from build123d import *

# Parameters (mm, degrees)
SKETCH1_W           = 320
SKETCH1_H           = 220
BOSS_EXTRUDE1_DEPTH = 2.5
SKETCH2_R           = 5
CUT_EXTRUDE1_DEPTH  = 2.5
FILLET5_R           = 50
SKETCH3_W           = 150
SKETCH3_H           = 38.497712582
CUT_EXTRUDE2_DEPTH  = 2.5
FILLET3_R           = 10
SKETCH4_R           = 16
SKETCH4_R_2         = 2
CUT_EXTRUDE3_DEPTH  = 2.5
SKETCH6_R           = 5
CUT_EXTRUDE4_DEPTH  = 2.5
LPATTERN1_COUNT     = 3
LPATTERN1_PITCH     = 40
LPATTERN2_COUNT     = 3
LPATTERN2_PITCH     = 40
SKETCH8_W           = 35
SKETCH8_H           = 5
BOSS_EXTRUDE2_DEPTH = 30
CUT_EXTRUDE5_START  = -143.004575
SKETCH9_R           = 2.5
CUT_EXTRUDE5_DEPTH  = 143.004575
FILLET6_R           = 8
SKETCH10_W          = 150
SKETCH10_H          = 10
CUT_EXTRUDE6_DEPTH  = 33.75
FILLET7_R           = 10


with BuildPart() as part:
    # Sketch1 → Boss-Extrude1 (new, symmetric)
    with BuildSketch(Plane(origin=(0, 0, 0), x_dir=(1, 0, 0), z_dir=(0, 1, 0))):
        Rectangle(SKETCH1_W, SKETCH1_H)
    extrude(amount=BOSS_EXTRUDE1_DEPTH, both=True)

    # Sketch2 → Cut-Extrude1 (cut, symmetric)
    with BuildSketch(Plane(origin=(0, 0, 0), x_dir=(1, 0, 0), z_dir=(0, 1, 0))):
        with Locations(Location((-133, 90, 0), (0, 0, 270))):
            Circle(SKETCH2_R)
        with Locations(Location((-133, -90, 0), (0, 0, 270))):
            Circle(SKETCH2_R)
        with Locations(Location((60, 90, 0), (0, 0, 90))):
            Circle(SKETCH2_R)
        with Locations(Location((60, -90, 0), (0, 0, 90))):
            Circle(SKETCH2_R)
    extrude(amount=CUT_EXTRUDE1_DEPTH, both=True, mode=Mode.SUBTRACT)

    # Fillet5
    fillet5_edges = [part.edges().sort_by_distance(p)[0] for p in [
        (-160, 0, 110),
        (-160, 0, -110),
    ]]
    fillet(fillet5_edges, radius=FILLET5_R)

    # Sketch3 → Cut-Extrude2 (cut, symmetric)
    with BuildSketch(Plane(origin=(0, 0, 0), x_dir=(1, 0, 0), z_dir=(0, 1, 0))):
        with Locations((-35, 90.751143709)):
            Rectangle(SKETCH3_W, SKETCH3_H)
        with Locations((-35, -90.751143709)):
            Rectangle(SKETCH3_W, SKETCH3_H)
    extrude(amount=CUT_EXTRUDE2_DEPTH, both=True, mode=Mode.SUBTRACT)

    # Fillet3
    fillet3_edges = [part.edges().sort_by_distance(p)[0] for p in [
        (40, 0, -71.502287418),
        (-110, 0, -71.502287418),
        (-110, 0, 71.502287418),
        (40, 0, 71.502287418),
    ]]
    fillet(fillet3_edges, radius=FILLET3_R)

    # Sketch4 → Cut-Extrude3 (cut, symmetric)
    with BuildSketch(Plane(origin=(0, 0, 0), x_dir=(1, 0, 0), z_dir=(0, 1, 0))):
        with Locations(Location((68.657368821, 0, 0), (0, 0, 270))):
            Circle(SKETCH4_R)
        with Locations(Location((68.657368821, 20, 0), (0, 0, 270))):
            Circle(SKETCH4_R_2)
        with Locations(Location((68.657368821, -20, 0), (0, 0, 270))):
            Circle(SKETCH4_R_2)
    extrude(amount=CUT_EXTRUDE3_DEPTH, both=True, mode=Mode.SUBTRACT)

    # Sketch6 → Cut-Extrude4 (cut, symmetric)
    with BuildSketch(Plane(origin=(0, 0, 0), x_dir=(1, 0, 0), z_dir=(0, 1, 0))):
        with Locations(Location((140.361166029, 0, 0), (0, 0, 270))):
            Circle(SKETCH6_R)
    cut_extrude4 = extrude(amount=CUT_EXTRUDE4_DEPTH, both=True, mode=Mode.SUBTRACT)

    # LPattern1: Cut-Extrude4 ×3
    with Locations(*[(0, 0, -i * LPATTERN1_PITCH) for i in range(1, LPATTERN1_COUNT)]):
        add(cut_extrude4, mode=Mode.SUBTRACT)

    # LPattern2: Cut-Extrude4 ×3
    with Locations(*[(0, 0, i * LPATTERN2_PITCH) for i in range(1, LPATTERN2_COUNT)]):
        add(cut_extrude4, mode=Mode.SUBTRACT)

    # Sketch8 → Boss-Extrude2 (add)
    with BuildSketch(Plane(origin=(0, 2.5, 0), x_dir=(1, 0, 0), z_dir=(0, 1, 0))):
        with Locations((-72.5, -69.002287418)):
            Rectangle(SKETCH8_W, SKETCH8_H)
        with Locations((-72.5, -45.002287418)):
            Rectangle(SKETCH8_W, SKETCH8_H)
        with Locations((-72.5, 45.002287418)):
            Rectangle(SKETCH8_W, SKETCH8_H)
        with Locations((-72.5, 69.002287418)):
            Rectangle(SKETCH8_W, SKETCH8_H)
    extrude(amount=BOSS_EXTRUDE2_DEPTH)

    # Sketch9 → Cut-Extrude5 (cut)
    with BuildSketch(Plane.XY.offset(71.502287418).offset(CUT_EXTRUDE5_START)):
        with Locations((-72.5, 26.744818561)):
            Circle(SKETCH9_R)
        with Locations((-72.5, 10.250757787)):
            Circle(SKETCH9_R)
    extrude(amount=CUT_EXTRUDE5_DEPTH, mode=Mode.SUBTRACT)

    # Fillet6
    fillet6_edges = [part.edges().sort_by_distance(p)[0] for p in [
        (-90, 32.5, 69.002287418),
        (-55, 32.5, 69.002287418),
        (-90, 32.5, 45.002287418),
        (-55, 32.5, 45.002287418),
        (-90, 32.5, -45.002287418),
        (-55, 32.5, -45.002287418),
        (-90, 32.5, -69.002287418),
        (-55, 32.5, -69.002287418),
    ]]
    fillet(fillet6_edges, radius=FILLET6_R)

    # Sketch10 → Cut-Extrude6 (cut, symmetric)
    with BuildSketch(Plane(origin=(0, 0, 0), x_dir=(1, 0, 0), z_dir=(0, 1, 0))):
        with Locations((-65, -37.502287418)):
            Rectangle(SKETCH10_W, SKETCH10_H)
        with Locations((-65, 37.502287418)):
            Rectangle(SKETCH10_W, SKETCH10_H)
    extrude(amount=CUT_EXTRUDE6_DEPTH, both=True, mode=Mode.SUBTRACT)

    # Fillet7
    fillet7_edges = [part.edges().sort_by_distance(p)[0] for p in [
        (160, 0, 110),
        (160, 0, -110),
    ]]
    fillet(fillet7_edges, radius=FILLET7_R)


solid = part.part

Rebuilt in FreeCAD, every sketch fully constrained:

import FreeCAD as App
import Part
import Sketcher


def edges_at(feature, points):
    """Names of the edges that pass closest to the given points."""
    edges = feature.Shape.Edges
    near = lambda p: min(range(len(edges)), key=lambda i: edges[i].distToShape(Part.Vertex(*p))[0])
    return sorted({f"Edge{near(p) + 1}" for p in points})


def add_polygon(sketch, points):
    """Adds a closed chain of lines whose ends are joined by coincident constraints."""
    first, n = sketch.GeometryCount, len(points)
    for a, b in zip(points, points[1:] + points[:1]):
        sketch.addGeometry(Part.LineSegment(App.Vector(*a, 0), App.Vector(*b, 0)), False)
    for i in range(n):
        sketch.addConstraint(Sketcher.Constraint("Coincident", first + i, 2, first + (i + 1) % n, 1))

doc = App.newDocument("Part")
body = doc.addObject("PartDesign::Body", "Body")

# Sketch on XZ plane
sketch1 = doc.addObject("Sketcher::SketchObject", "Sketch")
body.addObject(sketch1)
sketch1.AttachmentSupport = (doc.XZ_Plane, [""])
sketch1.MapMode = "FlatFace"
add_polygon(sketch1, [(-160, -110), (-160, 110), (160, 110), (160, -110)])  # lines 0-3
sketch1.addConstraint([
    Sketcher.Constraint("Vertical", 0),
    Sketcher.Constraint("Horizontal", 1),
    Sketcher.Constraint("Vertical", 2),
    Sketcher.Constraint("Horizontal", 3),
    Sketcher.Constraint("Symmetric", 0, 2, 2, 2, -1, 1),
    Sketcher.Constraint("DistanceX", 1, 1, 1, 2, 320.0),
    Sketcher.Constraint("DistanceY", 0, 1, 0, 2, 220.0),
])
pad1 = doc.addObject("PartDesign::Pad", "Pad")
body.addObject(pad1)
pad1.Profile = sketch1
pad1.Length = 5
pad1.Midplane = True

# Sketch on XZ plane
sketch2 = doc.addObject("Sketcher::SketchObject", "Sketch001")
body.addObject(sketch2)
sketch2.AttachmentSupport = (doc.XZ_Plane, [""])
sketch2.MapMode = "FlatFace"
sketch2.addGeometry([
    Part.Circle(App.Vector(-133, -90, 0), App.Vector(0, 0, 1), 5),
    Part.Circle(App.Vector(-133, 90, 0), App.Vector(0, 0, 1), 5),
    Part.Circle(App.Vector(60, -90, 0), App.Vector(0, 0, 1), 5),
    Part.Circle(App.Vector(60, 90, 0), App.Vector(0, 0, 1), 5),
], False)
sketch2.addConstraint([
    Sketcher.Constraint("Equal", 0, 1),
    Sketcher.Constraint("Equal", 1, 2),
    Sketcher.Constraint("Equal", 2, 3),
    Sketcher.Constraint("Symmetric", 0, 3, 1, 3, -1),
    Sketcher.Constraint("Symmetric", 2, 3, 3, 3, -1),
    Sketcher.Constraint("Horizontal", 0, 3, 2, 3),
    Sketcher.Constraint("Diameter", 0, 10.0),
    Sketcher.Constraint("DistanceX", 0, 3, -1, 1, 133.0),
    Sketcher.Constraint("DistanceY", 0, 3, -1, 1, 90.0),
    Sketcher.Constraint("DistanceX", -1, 1, 2, 3, 60.0),
])
pocket1 = doc.addObject("PartDesign::Pocket", "Pocket")
body.addObject(pocket1)
pocket1.Profile = sketch2
pocket1.Length = 5
pocket1.Midplane = True
doc.recompute()

fillet = doc.addObject("PartDesign::Fillet", "Fillet")
body.addObject(fillet)
fillet.Base = (pocket1, edges_at(pocket1, [(-160, 0, 110), (-160, 0, -110)]))
fillet.Radius = 50

# Sketch on XZ plane
sketch3 = doc.addObject("Sketcher::SketchObject", "Sketch002")
body.addObject(sketch3)
sketch3.AttachmentSupport = (doc.XZ_Plane, [""])
sketch3.MapMode = "FlatFace"
add_polygon(sketch3, [(-110, -110), (-110, -72), (40, -72), (40, -110)])  # lines 0-3
add_polygon(sketch3, [(-110, 72), (-110, 110), (40, 110), (40, 72)])  # lines 4-7
sketch3.addConstraint([
    Sketcher.Constraint("Vertical", 0),
    Sketcher.Constraint("Horizontal", 1),
    Sketcher.Constraint("Vertical", 2),
    Sketcher.Constraint("Horizontal", 3),
    Sketcher.Constraint("Vertical", 4),
    Sketcher.Constraint("Horizontal", 5),
    Sketcher.Constraint("Vertical", 6),
    Sketcher.Constraint("Horizontal", 7),
    Sketcher.Constraint("Symmetric", 3, 2, 4, 2, -1),
    Sketcher.Constraint("Symmetric", 1, 2, 6, 2, -1),
    Sketcher.Constraint("DistanceX", 1, 1, 1, 2, 150.0),
    Sketcher.Constraint("DistanceX", 0, 2, -1, 1, 110.0),
    Sketcher.Constraint("DistanceY", 2, 2, -1, 1, 110.0),
    Sketcher.Constraint("DistanceY", 0, 1, 0, 2, 38.497713),
])
pocket2 = doc.addObject("PartDesign::Pocket", "Pocket001")
body.addObject(pocket2)
pocket2.Profile = sketch3
pocket2.Length = 5
pocket2.Midplane = True
doc.recompute()

fillet2 = doc.addObject("PartDesign::Fillet", "Fillet001")
body.addObject(fillet2)
fillet2.Base = (pocket2, edges_at(pocket2, [
    (40, 0, -71.502),
    (-110, 0, -71.502),
    (-110, 0, 71.502),
    (40, 0, 71.502),
]))
fillet2.Radius = 10

# Sketch on XZ plane
sketch4 = doc.addObject("Sketcher::SketchObject", "Sketch003")
body.addObject(sketch4)
sketch4.AttachmentSupport = (doc.XZ_Plane, [""])
sketch4.MapMode = "FlatFace"
sketch4.addGeometry([
    Part.Circle(App.Vector(68.7, 0, 0), App.Vector(0, 0, 1), 16),
    Part.Circle(App.Vector(68.7, -20, 0), App.Vector(0, 0, 1), 2),
    Part.Circle(App.Vector(68.7, 20, 0), App.Vector(0, 0, 1), 2),
], False)
sketch4.addConstraint([
    Sketcher.Constraint("Equal", 1, 2),
    Sketcher.Constraint("Symmetric", 1, 3, 2, 3, -1),
    Sketcher.Constraint("PointOnObject", 0, 3, -1),
    Sketcher.Constraint("Vertical", 0, 3, 1, 3),
    Sketcher.Constraint("Diameter", 0, 32.0),
    Sketcher.Constraint("Diameter", 1, 4.0),
    Sketcher.Constraint("DistanceY", 1, 3, -1, 1, 20.0),
    Sketcher.Constraint("DistanceX", -1, 1, 0, 3, 68.657369),
])
pocket3 = doc.addObject("PartDesign::Pocket", "Pocket002")
body.addObject(pocket3)
pocket3.Profile = sketch4
pocket3.Length = 5
pocket3.Midplane = True

# Sketch on XZ plane
sketch5 = doc.addObject("Sketcher::SketchObject", "Sketch004")
body.addObject(sketch5)
sketch5.AttachmentSupport = (doc.XZ_Plane, [""])
sketch5.MapMode = "FlatFace"
sketch5.addGeometry(Part.Circle(App.Vector(140, 0, 0), App.Vector(0, 0, 1), 5), False)
sketch5.addConstraint([
    Sketcher.Constraint("PointOnObject", 0, 3, -1),
    Sketcher.Constraint("Diameter", 0, 10.0),
    Sketcher.Constraint("DistanceX", -1, 1, 0, 3, 140.361166),
])
pocket4 = doc.addObject("PartDesign::Pocket", "Pocket003")
body.addObject(pocket4)
pocket4.Profile = sketch5
pocket4.Length = 5
pocket4.Midplane = True
doc.recompute()

linearpattern = doc.addObject("PartDesign::LinearPattern", "LinearPattern")
body.addObject(linearpattern)
linearpattern.Originals = [pocket4]
linearpattern.Direction = (doc.Z_Axis, [""])
linearpattern.Mode = "offset"
linearpattern.Offset = 40
linearpattern.Occurrences = 3
linearpattern.Reversed = True
body.Tip = linearpattern
doc.recompute()

linearpattern2 = doc.addObject("PartDesign::LinearPattern", "LinearPattern001")
body.addObject(linearpattern2)
linearpattern2.Originals = [pocket4]
linearpattern2.Direction = (doc.Z_Axis, [""])
linearpattern2.Mode = "offset"
linearpattern2.Offset = 40
linearpattern2.Occurrences = 3
body.Tip = linearpattern2

# Sketch on XZ plane
sketch6 = doc.addObject("Sketcher::SketchObject", "Sketch005")
body.addObject(sketch6)
sketch6.AttachmentSupport = (doc.XZ_Plane, [""])
sketch6.MapMode = "FlatFace"
sketch6.AttachmentOffset = App.Placement(App.Vector(0, 0, -2.5), App.Rotation())
add_polygon(sketch6, [(-90, 67), (-90, 72), (-55, 72), (-55, 67)])  # lines 0-3
add_polygon(sketch6, [(-90, 43), (-90, 48), (-55, 48), (-55, 43)])  # lines 4-7
add_polygon(sketch6, [(-90, -48), (-90, -43), (-55, -43), (-55, -48)])  # lines 8-11
add_polygon(sketch6, [(-90, -72), (-90, -67), (-55, -67), (-55, -72)])  # lines 12-15
sketch6.addConstraint([
    Sketcher.Constraint("Vertical", 0),
    Sketcher.Constraint("Horizontal", 1),
    Sketcher.Constraint("Vertical", 2),
    Sketcher.Constraint("Horizontal", 3),
    Sketcher.Constraint("Vertical", 4),
    Sketcher.Constraint("Horizontal", 5),
    Sketcher.Constraint("Vertical", 6),
    Sketcher.Constraint("Horizontal", 7),
    Sketcher.Constraint("Vertical", 8),
    Sketcher.Constraint("Horizontal", 9),
    Sketcher.Constraint("Vertical", 10),
    Sketcher.Constraint("Horizontal", 11),
    Sketcher.Constraint("Vertical", 12),
    Sketcher.Constraint("Horizontal", 13),
    Sketcher.Constraint("Vertical", 14),
    Sketcher.Constraint("Horizontal", 15),
    Sketcher.Constraint("Symmetric", 7, 2, 8, 2, -1),
    Sketcher.Constraint("Symmetric", 5, 2, 10, 2, -1),
    Sketcher.Constraint("Symmetric", 3, 2, 12, 2, -1),
    Sketcher.Constraint("Symmetric", 1, 2, 14, 2, -1),
    Sketcher.Constraint("Vertical", 3, 2, 4, 2),
    Sketcher.Constraint("Vertical", 2, 2, 5, 2),
    Sketcher.Constraint("Equal", 2, 4),
    Sketcher.Constraint("DistanceX", 1, 1, 1, 2, 35.0),
    Sketcher.Constraint("DistanceY", 0, 1, 0, 2, 5.0),
    Sketcher.Constraint("DistanceX", 0, 2, -1, 1, 90.0),
    Sketcher.Constraint("DistanceY", 4, 2, 3, 2, 19.0),
    Sketcher.Constraint("DistanceY", -1, 1, 0, 2, 71.502287),
])
pad2 = doc.addObject("PartDesign::Pad", "Pad001")
body.addObject(pad2)
pad2.Profile = sketch6
pad2.Length = 30
pad2.Reversed = True

# Sketch on XY plane
sketch7 = doc.addObject("Sketcher::SketchObject", "Sketch006")
body.addObject(sketch7)
sketch7.AttachmentSupport = (doc.XY_Plane, [""])
sketch7.MapMode = "FlatFace"
sketch7.AttachmentOffset = App.Placement(App.Vector(0, 0, -71.502288), App.Rotation())
sketch7.addGeometry([
    Part.Circle(App.Vector(-72.5, 26.7, 0), App.Vector(0, 0, 1), 2.5),
    Part.Circle(App.Vector(-72.5, 10.3, 0), App.Vector(0, 0, 1), 2.5),
], False)
sketch7.addConstraint([
    Sketcher.Constraint("Equal", 0, 1),
    Sketcher.Constraint("Vertical", 0, 3, 1, 3),
    Sketcher.Constraint("Diameter", 0, 5.0),
    Sketcher.Constraint("DistanceX", 0, 3, -1, 1, 72.5),
    Sketcher.Constraint("DistanceY", -1, 1, 0, 3, 26.744819),
    Sketcher.Constraint("DistanceY", 1, 3, 0, 3, 16.494061),
])
pocket5 = doc.addObject("PartDesign::Pocket", "Pocket004")
body.addObject(pocket5)
pocket5.Profile = sketch7
pocket5.Length = 143.004575
pocket5.Reversed = True
doc.recompute()

fillet3 = doc.addObject("PartDesign::Fillet", "Fillet002")
body.addObject(fillet3)
fillet3.Base = (pocket5, edges_at(pocket5, [
    (-90, 32.5, 69.002),
    (-55, 32.5, 69.002),
    (-90, 32.5, 45.002),
    (-55, 32.5, 45.002),
    (-90, 32.5, -45.002),
    (-55, 32.5, -45.002),
    (-90, 32.5, -69.002),
    (-55, 32.5, -69.002),
]))
fillet3.Radius = 8

# Sketch on XZ plane
sketch8 = doc.addObject("Sketcher::SketchObject", "Sketch007")
body.addObject(sketch8)
sketch8.AttachmentSupport = (doc.XZ_Plane, [""])
sketch8.MapMode = "FlatFace"
add_polygon(sketch8, [(-140, 33), (-140, 43), (10, 43), (10, 33)])  # lines 0-3
add_polygon(sketch8, [(-140, -43), (-140, -33), (10, -33), (10, -43)])  # lines 4-7
sketch8.addConstraint([
    Sketcher.Constraint("Vertical", 0),
    Sketcher.Constraint("Horizontal", 1),
    Sketcher.Constraint("Vertical", 2),
    Sketcher.Constraint("Horizontal", 3),
    Sketcher.Constraint("Vertical", 4),
    Sketcher.Constraint("Horizontal", 5),
    Sketcher.Constraint("Vertical", 6),
    Sketcher.Constraint("Horizontal", 7),
    Sketcher.Constraint("Symmetric", 3, 2, 4, 2, -1),
    Sketcher.Constraint("Symmetric", 1, 2, 6, 2, -1),
    Sketcher.Constraint("DistanceX", 1, 1, 1, 2, 150.0),
    Sketcher.Constraint("DistanceY", 0, 1, 0, 2, 10.0),
    Sketcher.Constraint("DistanceX", 0, 2, -1, 1, 140.0),
    Sketcher.Constraint("DistanceY", -1, 1, 0, 2, 42.502287),
])
pocket6 = doc.addObject("PartDesign::Pocket", "Pocket005")
body.addObject(pocket6)
pocket6.Profile = sketch8
pocket6.Length = 67.5
pocket6.Midplane = True
doc.recompute()

fillet4 = doc.addObject("PartDesign::Fillet", "Fillet003")
body.addObject(fillet4)
fillet4.Base = (pocket6, edges_at(pocket6, [(160, 0, 110), (160, 0, -110)]))
fillet4.Radius = 10

doc.recompute()
